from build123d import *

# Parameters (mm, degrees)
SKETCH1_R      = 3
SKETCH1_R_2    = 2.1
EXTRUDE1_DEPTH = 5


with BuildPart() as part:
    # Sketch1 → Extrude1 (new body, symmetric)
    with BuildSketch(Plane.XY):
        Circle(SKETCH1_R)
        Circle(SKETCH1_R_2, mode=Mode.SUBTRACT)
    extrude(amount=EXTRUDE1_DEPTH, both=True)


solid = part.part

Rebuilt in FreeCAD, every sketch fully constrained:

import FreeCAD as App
import Part
import Sketcher
from FreeCAD import Vector

doc = App.newDocument("Part")
body = doc.addObject("PartDesign::Body", "Body")

sketch1 = doc.addObject("Sketcher::SketchObject", "Sketch")
body.addObject(sketch1)
sketch1.AttachmentSupport = (doc.XY_Plane, [""])
sketch1.MapMode = "FlatFace"
sketch1.addGeometry([
    Part.Circle(Vector(0, 0, 0), Vector(0, 0, 1), 3),
    Part.Circle(Vector(0, 0, 0), Vector(0, 0, 1), 2.1),
], False)
sketch1.addConstraint([
    Sketcher.Constraint("Coincident", 0, 3, -1, 1),
    Sketcher.Constraint("Coincident", 1, 3, -1, 1),
    Sketcher.Constraint("Diameter", 0, 6.0),
    Sketcher.Constraint("Diameter", 1, 4.2),
])
pad1 = doc.addObject("PartDesign::Pad", "Pad")
body.addObject(pad1)
pad1.Profile = sketch1
pad1.Length = 10
pad1.Midplane = True

doc.recompute()
